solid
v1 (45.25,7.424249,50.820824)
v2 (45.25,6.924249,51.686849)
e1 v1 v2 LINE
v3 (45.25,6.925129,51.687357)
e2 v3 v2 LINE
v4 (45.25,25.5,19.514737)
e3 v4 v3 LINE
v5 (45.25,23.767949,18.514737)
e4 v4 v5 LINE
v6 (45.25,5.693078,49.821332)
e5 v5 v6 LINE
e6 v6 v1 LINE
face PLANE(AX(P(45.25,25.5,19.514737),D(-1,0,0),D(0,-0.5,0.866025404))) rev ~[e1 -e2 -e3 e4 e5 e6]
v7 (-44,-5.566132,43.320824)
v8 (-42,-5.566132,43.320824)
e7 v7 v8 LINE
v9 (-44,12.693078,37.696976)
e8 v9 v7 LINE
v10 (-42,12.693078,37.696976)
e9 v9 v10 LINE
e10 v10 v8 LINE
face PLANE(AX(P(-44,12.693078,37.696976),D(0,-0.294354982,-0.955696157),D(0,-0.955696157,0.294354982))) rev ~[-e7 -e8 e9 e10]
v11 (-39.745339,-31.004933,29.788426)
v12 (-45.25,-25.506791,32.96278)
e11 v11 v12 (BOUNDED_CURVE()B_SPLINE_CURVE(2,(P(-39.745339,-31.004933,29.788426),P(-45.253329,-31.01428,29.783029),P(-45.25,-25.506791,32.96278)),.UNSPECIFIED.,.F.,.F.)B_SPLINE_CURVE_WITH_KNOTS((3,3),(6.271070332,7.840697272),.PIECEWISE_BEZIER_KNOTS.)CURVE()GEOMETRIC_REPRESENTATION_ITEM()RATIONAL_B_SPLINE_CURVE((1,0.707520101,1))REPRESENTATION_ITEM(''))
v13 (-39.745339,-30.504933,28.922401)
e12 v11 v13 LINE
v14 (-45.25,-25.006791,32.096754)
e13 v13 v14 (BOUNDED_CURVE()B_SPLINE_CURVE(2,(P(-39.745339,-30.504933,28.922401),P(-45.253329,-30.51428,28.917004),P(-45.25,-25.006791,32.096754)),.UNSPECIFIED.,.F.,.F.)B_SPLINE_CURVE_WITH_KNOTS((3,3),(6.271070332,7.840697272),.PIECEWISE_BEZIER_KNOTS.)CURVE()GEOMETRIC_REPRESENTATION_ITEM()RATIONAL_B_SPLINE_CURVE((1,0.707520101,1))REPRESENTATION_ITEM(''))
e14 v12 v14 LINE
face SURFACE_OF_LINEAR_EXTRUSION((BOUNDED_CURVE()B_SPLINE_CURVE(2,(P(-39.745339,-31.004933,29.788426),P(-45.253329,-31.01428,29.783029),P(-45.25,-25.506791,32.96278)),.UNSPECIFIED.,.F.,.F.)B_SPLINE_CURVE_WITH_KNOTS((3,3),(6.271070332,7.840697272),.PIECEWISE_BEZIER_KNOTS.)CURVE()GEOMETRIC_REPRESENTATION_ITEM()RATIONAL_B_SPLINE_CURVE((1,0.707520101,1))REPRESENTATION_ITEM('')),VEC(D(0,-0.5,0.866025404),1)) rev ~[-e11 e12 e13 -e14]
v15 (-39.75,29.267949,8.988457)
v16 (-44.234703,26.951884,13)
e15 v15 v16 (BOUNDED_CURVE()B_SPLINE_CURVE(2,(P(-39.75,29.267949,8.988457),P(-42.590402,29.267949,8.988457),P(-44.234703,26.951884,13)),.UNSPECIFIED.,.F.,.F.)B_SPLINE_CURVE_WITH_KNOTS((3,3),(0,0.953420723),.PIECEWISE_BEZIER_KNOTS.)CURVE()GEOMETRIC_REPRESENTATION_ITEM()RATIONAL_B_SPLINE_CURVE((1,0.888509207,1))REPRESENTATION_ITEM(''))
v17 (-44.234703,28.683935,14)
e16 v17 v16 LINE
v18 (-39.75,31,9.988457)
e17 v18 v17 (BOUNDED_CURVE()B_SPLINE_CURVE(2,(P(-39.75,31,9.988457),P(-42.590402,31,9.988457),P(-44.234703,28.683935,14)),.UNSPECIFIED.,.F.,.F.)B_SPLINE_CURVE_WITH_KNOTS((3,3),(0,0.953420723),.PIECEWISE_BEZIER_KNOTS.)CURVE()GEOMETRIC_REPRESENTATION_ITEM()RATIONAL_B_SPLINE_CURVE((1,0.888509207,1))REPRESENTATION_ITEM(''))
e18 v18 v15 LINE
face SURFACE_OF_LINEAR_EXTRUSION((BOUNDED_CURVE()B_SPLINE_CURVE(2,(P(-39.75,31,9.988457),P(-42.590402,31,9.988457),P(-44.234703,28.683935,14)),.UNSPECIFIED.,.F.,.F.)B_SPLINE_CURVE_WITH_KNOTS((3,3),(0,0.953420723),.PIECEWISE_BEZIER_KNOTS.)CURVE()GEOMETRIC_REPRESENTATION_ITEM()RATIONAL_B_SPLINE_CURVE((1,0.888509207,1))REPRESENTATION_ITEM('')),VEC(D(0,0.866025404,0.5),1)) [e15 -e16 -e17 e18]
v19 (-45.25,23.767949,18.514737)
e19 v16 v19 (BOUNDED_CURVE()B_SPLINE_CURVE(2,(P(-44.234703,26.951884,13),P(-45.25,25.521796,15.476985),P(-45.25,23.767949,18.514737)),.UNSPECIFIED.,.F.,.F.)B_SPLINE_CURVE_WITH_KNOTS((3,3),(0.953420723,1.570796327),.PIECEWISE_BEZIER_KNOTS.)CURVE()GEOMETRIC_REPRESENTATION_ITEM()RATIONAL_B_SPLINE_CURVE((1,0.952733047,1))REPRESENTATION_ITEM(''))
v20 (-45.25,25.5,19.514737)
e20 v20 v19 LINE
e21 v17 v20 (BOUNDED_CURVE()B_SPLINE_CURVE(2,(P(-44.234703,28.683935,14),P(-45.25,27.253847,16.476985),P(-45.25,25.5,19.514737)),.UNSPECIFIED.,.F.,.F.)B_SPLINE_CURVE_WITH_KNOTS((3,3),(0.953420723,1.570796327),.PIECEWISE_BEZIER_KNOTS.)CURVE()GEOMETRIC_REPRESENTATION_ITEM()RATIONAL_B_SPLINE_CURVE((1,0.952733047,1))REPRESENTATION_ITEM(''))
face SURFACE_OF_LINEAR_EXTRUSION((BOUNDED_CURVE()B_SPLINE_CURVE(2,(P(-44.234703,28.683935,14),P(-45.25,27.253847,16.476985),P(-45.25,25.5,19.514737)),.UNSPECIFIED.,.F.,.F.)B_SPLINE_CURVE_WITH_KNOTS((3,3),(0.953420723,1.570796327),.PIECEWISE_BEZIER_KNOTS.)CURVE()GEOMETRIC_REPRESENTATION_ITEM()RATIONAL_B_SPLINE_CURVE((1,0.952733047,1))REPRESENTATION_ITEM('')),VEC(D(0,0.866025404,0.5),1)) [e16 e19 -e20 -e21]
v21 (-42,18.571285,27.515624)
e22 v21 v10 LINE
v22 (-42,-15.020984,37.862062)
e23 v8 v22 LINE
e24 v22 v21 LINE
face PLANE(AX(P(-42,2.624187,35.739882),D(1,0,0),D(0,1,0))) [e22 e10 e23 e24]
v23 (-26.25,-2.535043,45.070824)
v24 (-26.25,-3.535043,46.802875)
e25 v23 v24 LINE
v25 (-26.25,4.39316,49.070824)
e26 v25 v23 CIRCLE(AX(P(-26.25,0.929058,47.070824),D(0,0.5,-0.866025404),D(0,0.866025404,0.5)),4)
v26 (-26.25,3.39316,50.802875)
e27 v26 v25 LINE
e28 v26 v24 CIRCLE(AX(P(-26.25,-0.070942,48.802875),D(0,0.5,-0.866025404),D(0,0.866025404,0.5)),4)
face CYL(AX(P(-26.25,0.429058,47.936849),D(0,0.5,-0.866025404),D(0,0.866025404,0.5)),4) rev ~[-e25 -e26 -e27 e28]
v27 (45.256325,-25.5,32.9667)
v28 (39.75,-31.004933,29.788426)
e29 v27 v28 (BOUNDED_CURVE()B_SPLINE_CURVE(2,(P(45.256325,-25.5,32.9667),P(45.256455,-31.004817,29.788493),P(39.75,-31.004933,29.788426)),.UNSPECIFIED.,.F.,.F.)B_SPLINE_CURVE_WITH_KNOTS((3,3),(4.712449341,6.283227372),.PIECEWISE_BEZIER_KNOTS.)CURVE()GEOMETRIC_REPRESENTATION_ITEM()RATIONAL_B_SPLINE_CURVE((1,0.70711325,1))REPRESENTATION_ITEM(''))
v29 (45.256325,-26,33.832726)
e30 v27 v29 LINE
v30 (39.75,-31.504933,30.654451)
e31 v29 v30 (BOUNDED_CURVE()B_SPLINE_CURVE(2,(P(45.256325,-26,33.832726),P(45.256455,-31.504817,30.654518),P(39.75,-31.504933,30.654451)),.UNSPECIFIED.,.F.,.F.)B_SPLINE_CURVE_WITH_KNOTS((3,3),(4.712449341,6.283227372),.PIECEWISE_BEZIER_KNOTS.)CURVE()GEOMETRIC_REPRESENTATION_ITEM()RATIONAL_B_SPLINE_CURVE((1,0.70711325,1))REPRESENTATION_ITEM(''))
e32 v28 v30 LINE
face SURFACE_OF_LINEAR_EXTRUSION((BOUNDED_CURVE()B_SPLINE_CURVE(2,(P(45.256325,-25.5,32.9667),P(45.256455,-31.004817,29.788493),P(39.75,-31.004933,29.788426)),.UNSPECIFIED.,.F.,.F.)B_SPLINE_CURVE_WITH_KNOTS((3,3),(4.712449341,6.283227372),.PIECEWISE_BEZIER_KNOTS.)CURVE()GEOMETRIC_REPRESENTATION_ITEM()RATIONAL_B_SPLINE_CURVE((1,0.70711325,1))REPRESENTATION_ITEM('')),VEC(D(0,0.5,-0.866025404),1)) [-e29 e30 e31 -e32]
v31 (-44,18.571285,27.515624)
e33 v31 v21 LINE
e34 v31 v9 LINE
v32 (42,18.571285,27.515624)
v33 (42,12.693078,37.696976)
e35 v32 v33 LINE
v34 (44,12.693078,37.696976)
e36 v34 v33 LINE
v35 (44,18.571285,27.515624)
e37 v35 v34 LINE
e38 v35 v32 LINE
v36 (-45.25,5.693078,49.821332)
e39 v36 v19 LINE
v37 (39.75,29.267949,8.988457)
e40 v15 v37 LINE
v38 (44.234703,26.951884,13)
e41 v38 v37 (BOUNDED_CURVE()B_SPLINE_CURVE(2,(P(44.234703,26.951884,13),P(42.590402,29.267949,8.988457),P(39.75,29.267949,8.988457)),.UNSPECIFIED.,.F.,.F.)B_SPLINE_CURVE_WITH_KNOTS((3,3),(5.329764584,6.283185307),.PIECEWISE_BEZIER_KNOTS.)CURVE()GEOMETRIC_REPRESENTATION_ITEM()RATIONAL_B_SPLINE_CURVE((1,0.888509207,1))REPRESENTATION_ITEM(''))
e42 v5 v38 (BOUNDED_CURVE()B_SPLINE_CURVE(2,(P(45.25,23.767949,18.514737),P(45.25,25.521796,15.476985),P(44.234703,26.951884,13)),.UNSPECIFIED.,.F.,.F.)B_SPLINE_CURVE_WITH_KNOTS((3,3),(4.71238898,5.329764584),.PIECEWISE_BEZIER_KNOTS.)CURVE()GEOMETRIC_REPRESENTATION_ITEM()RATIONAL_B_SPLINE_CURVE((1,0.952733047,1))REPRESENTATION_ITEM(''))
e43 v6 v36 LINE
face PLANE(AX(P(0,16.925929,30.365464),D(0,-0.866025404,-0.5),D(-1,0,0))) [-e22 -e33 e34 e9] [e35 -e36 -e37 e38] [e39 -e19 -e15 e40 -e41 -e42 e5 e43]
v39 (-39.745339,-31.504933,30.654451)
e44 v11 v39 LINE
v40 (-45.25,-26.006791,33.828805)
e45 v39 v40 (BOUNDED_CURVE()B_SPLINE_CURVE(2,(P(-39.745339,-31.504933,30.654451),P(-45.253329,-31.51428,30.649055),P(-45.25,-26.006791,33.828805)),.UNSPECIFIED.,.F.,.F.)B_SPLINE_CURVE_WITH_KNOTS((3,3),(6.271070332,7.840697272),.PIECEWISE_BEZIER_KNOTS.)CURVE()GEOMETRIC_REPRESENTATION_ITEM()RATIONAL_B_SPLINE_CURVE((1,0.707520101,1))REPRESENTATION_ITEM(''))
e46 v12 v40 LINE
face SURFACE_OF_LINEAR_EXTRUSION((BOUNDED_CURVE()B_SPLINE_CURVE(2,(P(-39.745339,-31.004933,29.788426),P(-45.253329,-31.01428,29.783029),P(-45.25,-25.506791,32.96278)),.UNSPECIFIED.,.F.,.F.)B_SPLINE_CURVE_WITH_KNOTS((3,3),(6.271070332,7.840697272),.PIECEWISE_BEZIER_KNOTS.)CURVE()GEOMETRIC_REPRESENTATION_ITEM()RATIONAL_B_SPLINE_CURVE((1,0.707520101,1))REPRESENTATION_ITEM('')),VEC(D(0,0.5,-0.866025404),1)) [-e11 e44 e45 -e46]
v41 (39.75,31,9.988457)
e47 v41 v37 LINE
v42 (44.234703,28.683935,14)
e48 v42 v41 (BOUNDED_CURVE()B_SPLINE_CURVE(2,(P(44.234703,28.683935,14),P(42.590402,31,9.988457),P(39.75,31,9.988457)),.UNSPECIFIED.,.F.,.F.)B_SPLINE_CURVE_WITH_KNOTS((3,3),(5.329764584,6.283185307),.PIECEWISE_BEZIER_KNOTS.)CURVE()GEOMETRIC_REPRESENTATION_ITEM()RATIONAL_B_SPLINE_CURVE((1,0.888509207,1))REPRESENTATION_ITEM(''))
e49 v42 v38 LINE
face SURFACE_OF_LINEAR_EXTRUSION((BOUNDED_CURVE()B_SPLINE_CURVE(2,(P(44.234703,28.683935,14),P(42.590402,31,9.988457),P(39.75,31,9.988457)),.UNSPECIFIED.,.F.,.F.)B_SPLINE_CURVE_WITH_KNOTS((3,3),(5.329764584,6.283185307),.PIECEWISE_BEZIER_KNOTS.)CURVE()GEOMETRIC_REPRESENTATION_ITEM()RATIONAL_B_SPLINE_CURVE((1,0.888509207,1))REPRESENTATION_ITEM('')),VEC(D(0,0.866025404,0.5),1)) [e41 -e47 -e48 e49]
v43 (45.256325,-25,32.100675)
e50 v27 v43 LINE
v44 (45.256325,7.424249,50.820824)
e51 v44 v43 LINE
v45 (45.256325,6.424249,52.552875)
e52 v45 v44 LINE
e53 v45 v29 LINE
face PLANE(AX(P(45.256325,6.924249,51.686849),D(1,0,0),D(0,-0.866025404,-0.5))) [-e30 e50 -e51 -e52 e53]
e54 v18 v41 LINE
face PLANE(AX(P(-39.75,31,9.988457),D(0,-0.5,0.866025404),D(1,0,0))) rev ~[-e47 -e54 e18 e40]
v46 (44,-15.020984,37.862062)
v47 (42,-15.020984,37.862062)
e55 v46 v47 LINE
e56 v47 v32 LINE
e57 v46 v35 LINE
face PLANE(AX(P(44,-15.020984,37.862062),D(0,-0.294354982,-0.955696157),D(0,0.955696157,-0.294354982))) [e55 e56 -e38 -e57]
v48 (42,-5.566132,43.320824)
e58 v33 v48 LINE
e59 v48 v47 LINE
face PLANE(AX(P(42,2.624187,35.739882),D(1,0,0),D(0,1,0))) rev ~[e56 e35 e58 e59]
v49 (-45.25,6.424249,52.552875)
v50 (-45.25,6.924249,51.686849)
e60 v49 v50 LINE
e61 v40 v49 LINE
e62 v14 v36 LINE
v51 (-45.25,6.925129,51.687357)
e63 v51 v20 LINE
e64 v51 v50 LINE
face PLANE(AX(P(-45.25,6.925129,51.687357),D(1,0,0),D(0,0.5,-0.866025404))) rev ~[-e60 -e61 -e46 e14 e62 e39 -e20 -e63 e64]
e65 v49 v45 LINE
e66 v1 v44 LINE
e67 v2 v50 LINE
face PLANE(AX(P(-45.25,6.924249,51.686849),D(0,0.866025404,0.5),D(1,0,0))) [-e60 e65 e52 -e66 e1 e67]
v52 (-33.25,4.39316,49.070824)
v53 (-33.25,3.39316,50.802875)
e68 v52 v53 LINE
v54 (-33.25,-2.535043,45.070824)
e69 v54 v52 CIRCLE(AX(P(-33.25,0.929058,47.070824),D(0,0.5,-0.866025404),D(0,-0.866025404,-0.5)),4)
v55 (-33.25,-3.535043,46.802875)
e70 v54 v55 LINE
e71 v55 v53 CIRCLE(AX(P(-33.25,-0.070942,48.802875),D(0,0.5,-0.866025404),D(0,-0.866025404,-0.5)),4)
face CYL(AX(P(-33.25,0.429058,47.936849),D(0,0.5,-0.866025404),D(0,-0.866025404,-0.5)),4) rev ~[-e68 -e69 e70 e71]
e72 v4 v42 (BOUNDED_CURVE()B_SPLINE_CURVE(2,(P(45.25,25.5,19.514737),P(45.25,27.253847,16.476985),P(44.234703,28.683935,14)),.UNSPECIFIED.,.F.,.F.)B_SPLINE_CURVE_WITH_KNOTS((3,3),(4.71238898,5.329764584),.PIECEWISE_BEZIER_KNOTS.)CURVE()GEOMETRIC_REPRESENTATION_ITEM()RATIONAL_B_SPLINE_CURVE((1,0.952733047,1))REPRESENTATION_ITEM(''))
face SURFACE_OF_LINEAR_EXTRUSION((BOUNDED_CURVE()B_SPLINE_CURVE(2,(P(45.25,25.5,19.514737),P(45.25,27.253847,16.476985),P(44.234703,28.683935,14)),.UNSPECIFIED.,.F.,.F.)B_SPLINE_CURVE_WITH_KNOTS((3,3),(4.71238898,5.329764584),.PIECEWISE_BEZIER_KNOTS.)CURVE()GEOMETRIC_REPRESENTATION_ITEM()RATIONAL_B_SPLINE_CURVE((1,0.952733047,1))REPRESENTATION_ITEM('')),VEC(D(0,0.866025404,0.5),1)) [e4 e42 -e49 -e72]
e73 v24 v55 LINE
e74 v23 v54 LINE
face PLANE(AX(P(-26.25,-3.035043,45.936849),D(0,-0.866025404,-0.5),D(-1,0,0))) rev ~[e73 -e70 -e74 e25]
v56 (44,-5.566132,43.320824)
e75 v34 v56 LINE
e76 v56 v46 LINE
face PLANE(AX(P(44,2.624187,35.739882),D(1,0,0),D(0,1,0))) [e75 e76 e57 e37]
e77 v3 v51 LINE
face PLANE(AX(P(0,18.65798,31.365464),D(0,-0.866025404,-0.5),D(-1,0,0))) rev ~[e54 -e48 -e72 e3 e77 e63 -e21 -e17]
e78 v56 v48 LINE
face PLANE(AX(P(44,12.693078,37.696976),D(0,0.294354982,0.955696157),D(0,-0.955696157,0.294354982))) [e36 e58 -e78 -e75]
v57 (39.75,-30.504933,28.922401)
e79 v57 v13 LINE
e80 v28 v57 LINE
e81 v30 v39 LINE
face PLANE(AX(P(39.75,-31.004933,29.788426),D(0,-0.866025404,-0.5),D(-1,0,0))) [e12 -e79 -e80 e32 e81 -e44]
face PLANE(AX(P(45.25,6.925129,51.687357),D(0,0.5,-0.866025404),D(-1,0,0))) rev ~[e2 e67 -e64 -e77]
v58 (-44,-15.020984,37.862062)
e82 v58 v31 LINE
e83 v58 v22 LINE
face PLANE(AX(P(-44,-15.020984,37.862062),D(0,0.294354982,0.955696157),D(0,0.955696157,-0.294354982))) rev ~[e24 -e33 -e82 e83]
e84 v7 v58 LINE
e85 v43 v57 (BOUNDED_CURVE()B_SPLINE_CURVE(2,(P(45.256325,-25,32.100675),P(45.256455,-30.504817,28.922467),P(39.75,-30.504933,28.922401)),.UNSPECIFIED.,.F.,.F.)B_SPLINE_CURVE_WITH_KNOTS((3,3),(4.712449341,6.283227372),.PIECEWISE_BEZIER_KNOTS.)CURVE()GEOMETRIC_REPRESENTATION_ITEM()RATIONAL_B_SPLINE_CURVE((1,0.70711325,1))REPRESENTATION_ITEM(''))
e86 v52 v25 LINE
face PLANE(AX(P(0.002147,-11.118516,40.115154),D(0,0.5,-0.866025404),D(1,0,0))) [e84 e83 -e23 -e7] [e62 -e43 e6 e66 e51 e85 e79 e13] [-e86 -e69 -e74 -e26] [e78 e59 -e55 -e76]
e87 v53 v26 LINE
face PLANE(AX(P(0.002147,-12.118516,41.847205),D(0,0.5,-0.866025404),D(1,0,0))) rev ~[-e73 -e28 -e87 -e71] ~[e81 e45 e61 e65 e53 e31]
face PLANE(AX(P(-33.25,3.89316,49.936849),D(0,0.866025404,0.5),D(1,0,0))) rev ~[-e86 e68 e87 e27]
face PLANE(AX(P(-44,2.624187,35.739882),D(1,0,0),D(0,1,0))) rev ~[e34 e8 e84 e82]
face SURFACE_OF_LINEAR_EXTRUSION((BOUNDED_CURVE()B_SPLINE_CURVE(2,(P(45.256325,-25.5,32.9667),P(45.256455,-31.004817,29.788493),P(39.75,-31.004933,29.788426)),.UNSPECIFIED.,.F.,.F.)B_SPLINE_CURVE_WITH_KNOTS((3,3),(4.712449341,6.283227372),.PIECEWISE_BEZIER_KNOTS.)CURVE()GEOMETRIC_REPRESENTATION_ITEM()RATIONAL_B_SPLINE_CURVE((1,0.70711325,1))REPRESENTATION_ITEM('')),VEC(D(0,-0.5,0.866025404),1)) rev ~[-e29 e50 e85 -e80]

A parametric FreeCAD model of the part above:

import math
import FreeCAD as App
import Part
import Sketcher

V = App.Vector
Q = App.Units.Quantity


def add_polygon(sketch, points):
    """Adds a closed chain of lines whose ends are joined by coincident constraints."""
    first, n = sketch.GeometryCount, len(points)
    for a, b in zip(points, points[1:] + points[:1]):
        sketch.addGeometry(Part.LineSegment(App.Vector(*a, 0), App.Vector(*b, 0)), False)
    for i in range(n):
        sketch.addConstraint(Sketcher.Constraint("Coincident", first + i, 2, first + (i + 1) % n, 1))

doc = App.newDocument("Part")
body = doc.addObject("PartDesign::Body", "Body")

# Sketch on an angled plane
sketch1 = body.newObject("Sketcher::SketchObject", "Sketch")
sketch1.Placement = App.Placement(V(0, 18.897768, 30.950139), App.Rotation(V(-1, 0, 0), V(0, 0.5, -0.866025404), V(0, -0.866025404, -0.5), "ZXY"))
sketch1.addGeometry(Part.LineSegment(V(-45.25, 13.204465, 0), V(-45.25, -23.945277, 0)), False)
sketch1.addGeometry(Part.LineSegment(V(-45.25, -23.945277, 0), V(45.25, -23.945277, 0)), False)
sketch1.addGeometry(Part.LineSegment(V(45.25, -23.945277, 0), V(45.25, 13.204465, 0)), False)
sketch1.addGeometry(Part.BSplineCurve([V(44.234703, 19.572334, 0), V(45.25, 16.712159, 0), V(45.25, 13.204465, 0)], [3, 3], [0.953420723, 1.570796327], False, 2, [1, 0.952733047, 1], False), False)
sketch1.addGeometry(Part.BSplineCurve([V(39.75, 24.204465, 0), V(42.590402, 24.204465, 0), V(44.234703, 19.572334, 0)], [3, 3], [0, 0.953420723], False, 2, [1, 0.888509207, 1], False), False)
sketch1.addGeometry(Part.LineSegment(V(39.75, 24.204465, 0), V(-39.75, 24.204465, 0)), False)
sketch1.addGeometry(Part.BSplineCurve([V(-44.234703, 19.572334, 0), V(-42.590402, 24.204465, 0), V(-39.75, 24.204465, 0)], [3, 3], [5.329764584, 6.283185307], False, 2, [1, 0.888509207, 1], False), False)
sketch1.addGeometry(Part.BSplineCurve([V(-45.25, 13.204465, 0), V(-45.25, 16.712159, 0), V(-44.234703, 19.572334, 0)], [3, 3], [4.71238898, 5.329764584], False, 2, [1, 0.952733047, 1], False), False)
sketch1.addConstraint(Sketcher.Constraint("Block", 3))
sketch1.addConstraint(Sketcher.Constraint("Block", 4))
sketch1.addConstraint(Sketcher.Constraint("Block", 6))
sketch1.addConstraint(Sketcher.Constraint("Block", 7))
sketch1.addConstraint(Sketcher.Constraint("Coincident", 0, 2, 1, 1))
sketch1.addConstraint(Sketcher.Constraint("Coincident", 1, 2, 2, 1))
sketch1.addConstraint(Sketcher.Constraint("Coincident", 2, 2, 3, 2))
sketch1.addConstraint(Sketcher.Constraint("Coincident", 4, 1, 5, 1))
sketch1.addConstraint(Sketcher.Constraint("Coincident", 5, 2, 6, 2))
sketch1.addConstraint(Sketcher.Constraint("Coincident", 7, 1, 0, 1))
sketch1.addConstraint(Sketcher.Constraint("Vertical", 0))
sketch1.addConstraint(Sketcher.Constraint("Horizontal", 1))
sketch1.addConstraint(Sketcher.Constraint("Vertical", 2))
sketch1.addConstraint(Sketcher.Constraint("DistanceY", 0, 2, 0, 1, Q("37.149742 mm")))
pad1 = body.newObject("PartDesign::Pad", "Pad")
pad1.Profile = sketch1
pad1.Length = 2
body2 = doc.addObject("PartDesign::Body", "Body001")

# Sketch on YZ plane
sketch2 = body2.newObject("Sketcher::SketchObject", "Sketch001")
sketch2.AttachmentSupport = (doc.getObject("YZ_Plane001"), [""])
sketch2.MapMode = "FlatFace"
sketch2.AttachmentOffset = App.Placement(V(0, 0, 44), App.Rotation())
add_polygon(sketch2, [(-15.020984, 37.862062), (18.571285, 27.515624), (12.693078, 37.696976), (-5.566132, 43.320824)])  # lines 0-3
sketch2.addConstraint(Sketcher.Constraint("Parallel", 0, 2))
sketch2.addConstraint(Sketcher.Constraint("Perpendicular", 1, 3))
sketch2.addConstraint(Sketcher.Constraint("Angle", 1, Q("120 deg")))
sketch2.addConstraint(Sketcher.Constraint("DistanceY", 0, 2, 2, 2, Q("15.8052 mm")))
sketch2.addConstraint(Sketcher.Constraint("DistanceX", -1, 1, 1, 2, Q("12.693078 mm")))
sketch2.addConstraint(Sketcher.Constraint("DistanceX", 2, 2, 1, 2, Q("18.25921 mm")))
sketch2.addConstraint(Sketcher.Constraint("DistanceX", 3, 2, 2, 2, Q("9.454852 mm")))
sketch2.addConstraint(Sketcher.Constraint("DistanceY", -1, 1, 0, 2, Q("27.515624 mm")))
pad2 = body2.newObject("PartDesign::Pad", "Pad001")
pad2.Profile = sketch2
pad2.Length = 2
pad2.Reversed = True
body3 = doc.addObject("PartDesign::Body", "Body002")

# Sketch on YZ plane
sketch3 = body3.newObject("Sketcher::SketchObject", "Sketch002")
sketch3.AttachmentSupport = (doc.getObject("YZ_Plane002"), [""])
sketch3.MapMode = "FlatFace"
sketch3.AttachmentOffset = App.Placement(V(0, 0, 44), App.Rotation())
add_polygon(sketch3, [(-15.020984, 37.862062), (18.571285, 27.515624), (12.693078, 37.696976), (-5.566132, 43.320824)])  # lines 0-3
sketch3.addConstraint(Sketcher.Constraint("Parallel", 0, 2))
sketch3.addConstraint(Sketcher.Constraint("Perpendicular", 1, 3))
sketch3.addConstraint(Sketcher.Constraint("Angle", 1, Q("120 deg")))
sketch3.addConstraint(Sketcher.Constraint("DistanceY", 0, 2, 2, 2, Q("15.8052 mm")))
sketch3.addConstraint(Sketcher.Constraint("DistanceX", -1, 1, 1, 2, Q("12.693078 mm")))
sketch3.addConstraint(Sketcher.Constraint("DistanceX", 2, 2, 1, 2, Q("18.25921 mm")))
sketch3.addConstraint(Sketcher.Constraint("DistanceX", 3, 2, 2, 2, Q("9.454852 mm")))
sketch3.addConstraint(Sketcher.Constraint("DistanceY", -1, 1, 0, 2, Q("27.515624 mm")))
pad3 = body3.newObject("PartDesign::Pad", "Pad002")
pad3.Profile = sketch3
pad3.Length = 2
body4 = doc.addObject("PartDesign::Body", "Body003")
doc.recompute()

body3.Placement = App.Placement(V(-88, 0, 0), App.Rotation(V(0, 0, 1), 0))
boolean = body4.newObject("PartDesign::Boolean", "Boolean")
boolean.Type = "Fuse"
boolean.addObjects([body3])
body5 = doc.addObject("PartDesign::Body", "Body004")

# Sketch on XY plane
sketch4 = body5.newObject("Sketcher::SketchObject", "Sketch003")
sketch4.AttachmentSupport = (doc.getObject("XY_Plane004"), [""])
sketch4.MapMode = "FlatFace"
sketch4.addGeometry(Part.BSplineCurve([V(-39.745339, 11.956846, 0), V(-45.253329, 11.967639, 0), V(-45.25, 5.608139, 0)], [3, 3], [6.271070332, 7.840697272], False, 2, [1, 0.707520101, 1], False), False)
sketch4.addGeometry(Part.LineSegment(V(-45.25, 5.608139, 0), V(-45.25, -31.84, 0)), False)
sketch4.addGeometry(Part.LineSegment(V(-45.25, -31.84, 0), V(45.256325, -31.84, 0)), False)
sketch4.addGeometry(Part.LineSegment(V(45.256325, -31.84, 0), V(45.256325, 5.600298, 0)), False)
sketch4.addGeometry(Part.BSplineCurve([V(45.256325, 5.600298, 0), V(45.256455, 11.956713, 0), V(39.75, 11.956846, 0)], [3, 3], [4.712449341, 6.283227372], False, 2, [1, 0.70711325, 1], False), False)
sketch4.addGeometry(Part.LineSegment(V(39.75, 11.956846, 0), V(-39.745339, 11.956846, 0)), False)
sketch4.addGeometry(Part.ArcOfCircle(Part.Circle(V(-26.25, -24.34, 0), V(0, 0, 1), 4), math.radians(-90), math.radians(90)), False)
sketch4.addGeometry(Part.LineSegment(V(-26.25, -28.34, 0), V(-33.25, -28.34, 0)), False)
sketch4.addGeometry(Part.ArcOfCircle(Part.Circle(V(-33.25, -24.34, 0), V(0, 0, 1), 4), math.radians(90), math.radians(270)), False)
sketch4.addGeometry(Part.LineSegment(V(-33.25, -20.34, 0), V(-26.25, -20.34, 0)), False)
sketch4.addConstraint(Sketcher.Constraint("Block", 0))
sketch4.addConstraint(Sketcher.Constraint("Block", 4))
sketch4.addConstraint(Sketcher.Constraint("Coincident", 0, 2, 1, 1))
sketch4.addConstraint(Sketcher.Constraint("Coincident", 1, 2, 2, 1))
sketch4.addConstraint(Sketcher.Constraint("Coincident", 2, 2, 3, 1))
sketch4.addConstraint(Sketcher.Constraint("Coincident", 3, 2, 4, 1))
sketch4.addConstraint(Sketcher.Constraint("Coincident", 4, 2, 5, 1))
sketch4.addConstraint(Sketcher.Constraint("Coincident", 5, 2, 0, 1))
sketch4.addConstraint(Sketcher.Constraint("Tangent", 6, 1, 7, 1))
sketch4.addConstraint(Sketcher.Constraint("Tangent", 7, 2, 8, 2))
sketch4.addConstraint(Sketcher.Constraint("Tangent", 8, 1, 9, 1))
sketch4.addConstraint(Sketcher.Constraint("Tangent", 9, 2, 6, 2))
sketch4.addConstraint(Sketcher.Constraint("Vertical", 1))
sketch4.addConstraint(Sketcher.Constraint("Horizontal", 2))
sketch4.addConstraint(Sketcher.Constraint("Vertical", 3))
sketch4.addConstraint(Sketcher.Constraint("Horizontal", 7))
sketch4.addConstraint(Sketcher.Constraint("Horizontal", 9))
sketch4.addConstraint(Sketcher.Constraint("Radius", 6, Q("4 mm")))
sketch4.addConstraint(Sketcher.Constraint("DistanceX", 7, 2, 7, 1, Q("7 mm")))
sketch4.addConstraint(Sketcher.Constraint("DistanceX", 1, 2, 8, 3, Q("12 mm")))
sketch4.addConstraint(Sketcher.Constraint("DistanceY", 1, 2, 8, 3, Q("7.5 mm")))
sketch4.addConstraint(Sketcher.Constraint("DistanceY", 6, 3, -1, 1, Q("24.34 mm")))
pad4 = body5.newObject("PartDesign::Pad", "Pad003")
pad4.Profile = sketch4
pad4.Length = 2
pad4.Midplane = True
body6 = doc.addObject("PartDesign::Body", "Body005")
doc.recompute()

body5.Placement = App.Placement(V(0, -20.65, 35.766849), App.Rotation(V(1, 0, 0), 210))
boolean2 = body6.newObject("PartDesign::Boolean", "Boolean001")
boolean2.Type = "Fuse"
boolean2.addObjects([body5])
doc.recompute()

boolean3 = body6.newObject("PartDesign::Boolean", "Boolean002")
boolean3.Type = "Fuse"
boolean3.addObjects([body])
doc.recompute()

boolean4 = body6.newObject("PartDesign::Boolean", "Boolean003")
boolean4.Type = "Fuse"
boolean4.addObjects([body2])
doc.recompute()

boolean5 = body6.newObject("PartDesign::Boolean", "Boolean004")
boolean5.Type = "Fuse"
boolean5.addObjects([body4])

doc.recompute()
